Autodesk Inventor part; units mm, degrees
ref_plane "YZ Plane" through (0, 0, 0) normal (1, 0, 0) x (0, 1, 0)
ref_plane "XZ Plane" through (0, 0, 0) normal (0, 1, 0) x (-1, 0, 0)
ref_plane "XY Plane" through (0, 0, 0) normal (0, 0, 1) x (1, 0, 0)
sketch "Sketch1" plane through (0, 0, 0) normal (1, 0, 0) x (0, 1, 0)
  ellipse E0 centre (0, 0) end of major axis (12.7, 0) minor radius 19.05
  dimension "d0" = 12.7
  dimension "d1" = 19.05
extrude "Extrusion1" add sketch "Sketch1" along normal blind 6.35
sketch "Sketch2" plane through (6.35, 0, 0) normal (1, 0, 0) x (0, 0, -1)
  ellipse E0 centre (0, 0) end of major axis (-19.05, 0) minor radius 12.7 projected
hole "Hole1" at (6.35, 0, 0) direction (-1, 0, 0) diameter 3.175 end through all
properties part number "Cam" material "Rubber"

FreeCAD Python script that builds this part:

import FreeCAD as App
import Part
import Sketcher

V = App.Vector
Q = App.Units.Quantity

doc = App.newDocument("Part")
body = doc.addObject("PartDesign::Body", "Body")

# Sketch on YZ plane
sketch1 = doc.addObject("Sketcher::SketchObject", "Sketch")
body.addObject(sketch1)
sketch1.AttachmentSupport = (doc.YZ_Plane, [""])
sketch1.MapMode = "FlatFace"
sketch1.addGeometry(Part.Ellipse(V(0, 19.05, 0), V(-12.7, 0, 0), V(0, 0, 0)), False)
sketch1.addConstraint(Sketcher.Constraint("Block", 0))
pad1 = doc.addObject("PartDesign::Pad", "Pad")
body.addObject(pad1)
pad1.Profile = sketch1
pad1.Length = Q("0.25 in")

# Sketch on YZ plane
sketch2 = doc.addObject("Sketcher::SketchObject", "Sketch001")
body.addObject(sketch2)
sketch2.AttachmentSupport = (doc.YZ_Plane, [""])
sketch2.MapMode = "FlatFace"
sketch2.AttachmentOffset = App.Placement(V(0, 0, 0.25 * 25.4), App.Rotation())
sketch2.addGeometry(Part.Circle(V(0, 0, 0), V(0, 0, 1), 1.6), False)
sketch2.addConstraint([
    Sketcher.Constraint("Coincident", 0, 3, -1, 1),
    Sketcher.Constraint("Diameter", 0, Q("0.125 in")),
])
doc.recompute()
hole = doc.addObject("PartDesign::Hole", "Hole")
body.addObject(hole)
hole.Profile = sketch2
hole.ThreadType = "None"
hole.Diameter = Q("0.125 in")
hole.DepthType = "ThroughAll"

doc.recompute()
